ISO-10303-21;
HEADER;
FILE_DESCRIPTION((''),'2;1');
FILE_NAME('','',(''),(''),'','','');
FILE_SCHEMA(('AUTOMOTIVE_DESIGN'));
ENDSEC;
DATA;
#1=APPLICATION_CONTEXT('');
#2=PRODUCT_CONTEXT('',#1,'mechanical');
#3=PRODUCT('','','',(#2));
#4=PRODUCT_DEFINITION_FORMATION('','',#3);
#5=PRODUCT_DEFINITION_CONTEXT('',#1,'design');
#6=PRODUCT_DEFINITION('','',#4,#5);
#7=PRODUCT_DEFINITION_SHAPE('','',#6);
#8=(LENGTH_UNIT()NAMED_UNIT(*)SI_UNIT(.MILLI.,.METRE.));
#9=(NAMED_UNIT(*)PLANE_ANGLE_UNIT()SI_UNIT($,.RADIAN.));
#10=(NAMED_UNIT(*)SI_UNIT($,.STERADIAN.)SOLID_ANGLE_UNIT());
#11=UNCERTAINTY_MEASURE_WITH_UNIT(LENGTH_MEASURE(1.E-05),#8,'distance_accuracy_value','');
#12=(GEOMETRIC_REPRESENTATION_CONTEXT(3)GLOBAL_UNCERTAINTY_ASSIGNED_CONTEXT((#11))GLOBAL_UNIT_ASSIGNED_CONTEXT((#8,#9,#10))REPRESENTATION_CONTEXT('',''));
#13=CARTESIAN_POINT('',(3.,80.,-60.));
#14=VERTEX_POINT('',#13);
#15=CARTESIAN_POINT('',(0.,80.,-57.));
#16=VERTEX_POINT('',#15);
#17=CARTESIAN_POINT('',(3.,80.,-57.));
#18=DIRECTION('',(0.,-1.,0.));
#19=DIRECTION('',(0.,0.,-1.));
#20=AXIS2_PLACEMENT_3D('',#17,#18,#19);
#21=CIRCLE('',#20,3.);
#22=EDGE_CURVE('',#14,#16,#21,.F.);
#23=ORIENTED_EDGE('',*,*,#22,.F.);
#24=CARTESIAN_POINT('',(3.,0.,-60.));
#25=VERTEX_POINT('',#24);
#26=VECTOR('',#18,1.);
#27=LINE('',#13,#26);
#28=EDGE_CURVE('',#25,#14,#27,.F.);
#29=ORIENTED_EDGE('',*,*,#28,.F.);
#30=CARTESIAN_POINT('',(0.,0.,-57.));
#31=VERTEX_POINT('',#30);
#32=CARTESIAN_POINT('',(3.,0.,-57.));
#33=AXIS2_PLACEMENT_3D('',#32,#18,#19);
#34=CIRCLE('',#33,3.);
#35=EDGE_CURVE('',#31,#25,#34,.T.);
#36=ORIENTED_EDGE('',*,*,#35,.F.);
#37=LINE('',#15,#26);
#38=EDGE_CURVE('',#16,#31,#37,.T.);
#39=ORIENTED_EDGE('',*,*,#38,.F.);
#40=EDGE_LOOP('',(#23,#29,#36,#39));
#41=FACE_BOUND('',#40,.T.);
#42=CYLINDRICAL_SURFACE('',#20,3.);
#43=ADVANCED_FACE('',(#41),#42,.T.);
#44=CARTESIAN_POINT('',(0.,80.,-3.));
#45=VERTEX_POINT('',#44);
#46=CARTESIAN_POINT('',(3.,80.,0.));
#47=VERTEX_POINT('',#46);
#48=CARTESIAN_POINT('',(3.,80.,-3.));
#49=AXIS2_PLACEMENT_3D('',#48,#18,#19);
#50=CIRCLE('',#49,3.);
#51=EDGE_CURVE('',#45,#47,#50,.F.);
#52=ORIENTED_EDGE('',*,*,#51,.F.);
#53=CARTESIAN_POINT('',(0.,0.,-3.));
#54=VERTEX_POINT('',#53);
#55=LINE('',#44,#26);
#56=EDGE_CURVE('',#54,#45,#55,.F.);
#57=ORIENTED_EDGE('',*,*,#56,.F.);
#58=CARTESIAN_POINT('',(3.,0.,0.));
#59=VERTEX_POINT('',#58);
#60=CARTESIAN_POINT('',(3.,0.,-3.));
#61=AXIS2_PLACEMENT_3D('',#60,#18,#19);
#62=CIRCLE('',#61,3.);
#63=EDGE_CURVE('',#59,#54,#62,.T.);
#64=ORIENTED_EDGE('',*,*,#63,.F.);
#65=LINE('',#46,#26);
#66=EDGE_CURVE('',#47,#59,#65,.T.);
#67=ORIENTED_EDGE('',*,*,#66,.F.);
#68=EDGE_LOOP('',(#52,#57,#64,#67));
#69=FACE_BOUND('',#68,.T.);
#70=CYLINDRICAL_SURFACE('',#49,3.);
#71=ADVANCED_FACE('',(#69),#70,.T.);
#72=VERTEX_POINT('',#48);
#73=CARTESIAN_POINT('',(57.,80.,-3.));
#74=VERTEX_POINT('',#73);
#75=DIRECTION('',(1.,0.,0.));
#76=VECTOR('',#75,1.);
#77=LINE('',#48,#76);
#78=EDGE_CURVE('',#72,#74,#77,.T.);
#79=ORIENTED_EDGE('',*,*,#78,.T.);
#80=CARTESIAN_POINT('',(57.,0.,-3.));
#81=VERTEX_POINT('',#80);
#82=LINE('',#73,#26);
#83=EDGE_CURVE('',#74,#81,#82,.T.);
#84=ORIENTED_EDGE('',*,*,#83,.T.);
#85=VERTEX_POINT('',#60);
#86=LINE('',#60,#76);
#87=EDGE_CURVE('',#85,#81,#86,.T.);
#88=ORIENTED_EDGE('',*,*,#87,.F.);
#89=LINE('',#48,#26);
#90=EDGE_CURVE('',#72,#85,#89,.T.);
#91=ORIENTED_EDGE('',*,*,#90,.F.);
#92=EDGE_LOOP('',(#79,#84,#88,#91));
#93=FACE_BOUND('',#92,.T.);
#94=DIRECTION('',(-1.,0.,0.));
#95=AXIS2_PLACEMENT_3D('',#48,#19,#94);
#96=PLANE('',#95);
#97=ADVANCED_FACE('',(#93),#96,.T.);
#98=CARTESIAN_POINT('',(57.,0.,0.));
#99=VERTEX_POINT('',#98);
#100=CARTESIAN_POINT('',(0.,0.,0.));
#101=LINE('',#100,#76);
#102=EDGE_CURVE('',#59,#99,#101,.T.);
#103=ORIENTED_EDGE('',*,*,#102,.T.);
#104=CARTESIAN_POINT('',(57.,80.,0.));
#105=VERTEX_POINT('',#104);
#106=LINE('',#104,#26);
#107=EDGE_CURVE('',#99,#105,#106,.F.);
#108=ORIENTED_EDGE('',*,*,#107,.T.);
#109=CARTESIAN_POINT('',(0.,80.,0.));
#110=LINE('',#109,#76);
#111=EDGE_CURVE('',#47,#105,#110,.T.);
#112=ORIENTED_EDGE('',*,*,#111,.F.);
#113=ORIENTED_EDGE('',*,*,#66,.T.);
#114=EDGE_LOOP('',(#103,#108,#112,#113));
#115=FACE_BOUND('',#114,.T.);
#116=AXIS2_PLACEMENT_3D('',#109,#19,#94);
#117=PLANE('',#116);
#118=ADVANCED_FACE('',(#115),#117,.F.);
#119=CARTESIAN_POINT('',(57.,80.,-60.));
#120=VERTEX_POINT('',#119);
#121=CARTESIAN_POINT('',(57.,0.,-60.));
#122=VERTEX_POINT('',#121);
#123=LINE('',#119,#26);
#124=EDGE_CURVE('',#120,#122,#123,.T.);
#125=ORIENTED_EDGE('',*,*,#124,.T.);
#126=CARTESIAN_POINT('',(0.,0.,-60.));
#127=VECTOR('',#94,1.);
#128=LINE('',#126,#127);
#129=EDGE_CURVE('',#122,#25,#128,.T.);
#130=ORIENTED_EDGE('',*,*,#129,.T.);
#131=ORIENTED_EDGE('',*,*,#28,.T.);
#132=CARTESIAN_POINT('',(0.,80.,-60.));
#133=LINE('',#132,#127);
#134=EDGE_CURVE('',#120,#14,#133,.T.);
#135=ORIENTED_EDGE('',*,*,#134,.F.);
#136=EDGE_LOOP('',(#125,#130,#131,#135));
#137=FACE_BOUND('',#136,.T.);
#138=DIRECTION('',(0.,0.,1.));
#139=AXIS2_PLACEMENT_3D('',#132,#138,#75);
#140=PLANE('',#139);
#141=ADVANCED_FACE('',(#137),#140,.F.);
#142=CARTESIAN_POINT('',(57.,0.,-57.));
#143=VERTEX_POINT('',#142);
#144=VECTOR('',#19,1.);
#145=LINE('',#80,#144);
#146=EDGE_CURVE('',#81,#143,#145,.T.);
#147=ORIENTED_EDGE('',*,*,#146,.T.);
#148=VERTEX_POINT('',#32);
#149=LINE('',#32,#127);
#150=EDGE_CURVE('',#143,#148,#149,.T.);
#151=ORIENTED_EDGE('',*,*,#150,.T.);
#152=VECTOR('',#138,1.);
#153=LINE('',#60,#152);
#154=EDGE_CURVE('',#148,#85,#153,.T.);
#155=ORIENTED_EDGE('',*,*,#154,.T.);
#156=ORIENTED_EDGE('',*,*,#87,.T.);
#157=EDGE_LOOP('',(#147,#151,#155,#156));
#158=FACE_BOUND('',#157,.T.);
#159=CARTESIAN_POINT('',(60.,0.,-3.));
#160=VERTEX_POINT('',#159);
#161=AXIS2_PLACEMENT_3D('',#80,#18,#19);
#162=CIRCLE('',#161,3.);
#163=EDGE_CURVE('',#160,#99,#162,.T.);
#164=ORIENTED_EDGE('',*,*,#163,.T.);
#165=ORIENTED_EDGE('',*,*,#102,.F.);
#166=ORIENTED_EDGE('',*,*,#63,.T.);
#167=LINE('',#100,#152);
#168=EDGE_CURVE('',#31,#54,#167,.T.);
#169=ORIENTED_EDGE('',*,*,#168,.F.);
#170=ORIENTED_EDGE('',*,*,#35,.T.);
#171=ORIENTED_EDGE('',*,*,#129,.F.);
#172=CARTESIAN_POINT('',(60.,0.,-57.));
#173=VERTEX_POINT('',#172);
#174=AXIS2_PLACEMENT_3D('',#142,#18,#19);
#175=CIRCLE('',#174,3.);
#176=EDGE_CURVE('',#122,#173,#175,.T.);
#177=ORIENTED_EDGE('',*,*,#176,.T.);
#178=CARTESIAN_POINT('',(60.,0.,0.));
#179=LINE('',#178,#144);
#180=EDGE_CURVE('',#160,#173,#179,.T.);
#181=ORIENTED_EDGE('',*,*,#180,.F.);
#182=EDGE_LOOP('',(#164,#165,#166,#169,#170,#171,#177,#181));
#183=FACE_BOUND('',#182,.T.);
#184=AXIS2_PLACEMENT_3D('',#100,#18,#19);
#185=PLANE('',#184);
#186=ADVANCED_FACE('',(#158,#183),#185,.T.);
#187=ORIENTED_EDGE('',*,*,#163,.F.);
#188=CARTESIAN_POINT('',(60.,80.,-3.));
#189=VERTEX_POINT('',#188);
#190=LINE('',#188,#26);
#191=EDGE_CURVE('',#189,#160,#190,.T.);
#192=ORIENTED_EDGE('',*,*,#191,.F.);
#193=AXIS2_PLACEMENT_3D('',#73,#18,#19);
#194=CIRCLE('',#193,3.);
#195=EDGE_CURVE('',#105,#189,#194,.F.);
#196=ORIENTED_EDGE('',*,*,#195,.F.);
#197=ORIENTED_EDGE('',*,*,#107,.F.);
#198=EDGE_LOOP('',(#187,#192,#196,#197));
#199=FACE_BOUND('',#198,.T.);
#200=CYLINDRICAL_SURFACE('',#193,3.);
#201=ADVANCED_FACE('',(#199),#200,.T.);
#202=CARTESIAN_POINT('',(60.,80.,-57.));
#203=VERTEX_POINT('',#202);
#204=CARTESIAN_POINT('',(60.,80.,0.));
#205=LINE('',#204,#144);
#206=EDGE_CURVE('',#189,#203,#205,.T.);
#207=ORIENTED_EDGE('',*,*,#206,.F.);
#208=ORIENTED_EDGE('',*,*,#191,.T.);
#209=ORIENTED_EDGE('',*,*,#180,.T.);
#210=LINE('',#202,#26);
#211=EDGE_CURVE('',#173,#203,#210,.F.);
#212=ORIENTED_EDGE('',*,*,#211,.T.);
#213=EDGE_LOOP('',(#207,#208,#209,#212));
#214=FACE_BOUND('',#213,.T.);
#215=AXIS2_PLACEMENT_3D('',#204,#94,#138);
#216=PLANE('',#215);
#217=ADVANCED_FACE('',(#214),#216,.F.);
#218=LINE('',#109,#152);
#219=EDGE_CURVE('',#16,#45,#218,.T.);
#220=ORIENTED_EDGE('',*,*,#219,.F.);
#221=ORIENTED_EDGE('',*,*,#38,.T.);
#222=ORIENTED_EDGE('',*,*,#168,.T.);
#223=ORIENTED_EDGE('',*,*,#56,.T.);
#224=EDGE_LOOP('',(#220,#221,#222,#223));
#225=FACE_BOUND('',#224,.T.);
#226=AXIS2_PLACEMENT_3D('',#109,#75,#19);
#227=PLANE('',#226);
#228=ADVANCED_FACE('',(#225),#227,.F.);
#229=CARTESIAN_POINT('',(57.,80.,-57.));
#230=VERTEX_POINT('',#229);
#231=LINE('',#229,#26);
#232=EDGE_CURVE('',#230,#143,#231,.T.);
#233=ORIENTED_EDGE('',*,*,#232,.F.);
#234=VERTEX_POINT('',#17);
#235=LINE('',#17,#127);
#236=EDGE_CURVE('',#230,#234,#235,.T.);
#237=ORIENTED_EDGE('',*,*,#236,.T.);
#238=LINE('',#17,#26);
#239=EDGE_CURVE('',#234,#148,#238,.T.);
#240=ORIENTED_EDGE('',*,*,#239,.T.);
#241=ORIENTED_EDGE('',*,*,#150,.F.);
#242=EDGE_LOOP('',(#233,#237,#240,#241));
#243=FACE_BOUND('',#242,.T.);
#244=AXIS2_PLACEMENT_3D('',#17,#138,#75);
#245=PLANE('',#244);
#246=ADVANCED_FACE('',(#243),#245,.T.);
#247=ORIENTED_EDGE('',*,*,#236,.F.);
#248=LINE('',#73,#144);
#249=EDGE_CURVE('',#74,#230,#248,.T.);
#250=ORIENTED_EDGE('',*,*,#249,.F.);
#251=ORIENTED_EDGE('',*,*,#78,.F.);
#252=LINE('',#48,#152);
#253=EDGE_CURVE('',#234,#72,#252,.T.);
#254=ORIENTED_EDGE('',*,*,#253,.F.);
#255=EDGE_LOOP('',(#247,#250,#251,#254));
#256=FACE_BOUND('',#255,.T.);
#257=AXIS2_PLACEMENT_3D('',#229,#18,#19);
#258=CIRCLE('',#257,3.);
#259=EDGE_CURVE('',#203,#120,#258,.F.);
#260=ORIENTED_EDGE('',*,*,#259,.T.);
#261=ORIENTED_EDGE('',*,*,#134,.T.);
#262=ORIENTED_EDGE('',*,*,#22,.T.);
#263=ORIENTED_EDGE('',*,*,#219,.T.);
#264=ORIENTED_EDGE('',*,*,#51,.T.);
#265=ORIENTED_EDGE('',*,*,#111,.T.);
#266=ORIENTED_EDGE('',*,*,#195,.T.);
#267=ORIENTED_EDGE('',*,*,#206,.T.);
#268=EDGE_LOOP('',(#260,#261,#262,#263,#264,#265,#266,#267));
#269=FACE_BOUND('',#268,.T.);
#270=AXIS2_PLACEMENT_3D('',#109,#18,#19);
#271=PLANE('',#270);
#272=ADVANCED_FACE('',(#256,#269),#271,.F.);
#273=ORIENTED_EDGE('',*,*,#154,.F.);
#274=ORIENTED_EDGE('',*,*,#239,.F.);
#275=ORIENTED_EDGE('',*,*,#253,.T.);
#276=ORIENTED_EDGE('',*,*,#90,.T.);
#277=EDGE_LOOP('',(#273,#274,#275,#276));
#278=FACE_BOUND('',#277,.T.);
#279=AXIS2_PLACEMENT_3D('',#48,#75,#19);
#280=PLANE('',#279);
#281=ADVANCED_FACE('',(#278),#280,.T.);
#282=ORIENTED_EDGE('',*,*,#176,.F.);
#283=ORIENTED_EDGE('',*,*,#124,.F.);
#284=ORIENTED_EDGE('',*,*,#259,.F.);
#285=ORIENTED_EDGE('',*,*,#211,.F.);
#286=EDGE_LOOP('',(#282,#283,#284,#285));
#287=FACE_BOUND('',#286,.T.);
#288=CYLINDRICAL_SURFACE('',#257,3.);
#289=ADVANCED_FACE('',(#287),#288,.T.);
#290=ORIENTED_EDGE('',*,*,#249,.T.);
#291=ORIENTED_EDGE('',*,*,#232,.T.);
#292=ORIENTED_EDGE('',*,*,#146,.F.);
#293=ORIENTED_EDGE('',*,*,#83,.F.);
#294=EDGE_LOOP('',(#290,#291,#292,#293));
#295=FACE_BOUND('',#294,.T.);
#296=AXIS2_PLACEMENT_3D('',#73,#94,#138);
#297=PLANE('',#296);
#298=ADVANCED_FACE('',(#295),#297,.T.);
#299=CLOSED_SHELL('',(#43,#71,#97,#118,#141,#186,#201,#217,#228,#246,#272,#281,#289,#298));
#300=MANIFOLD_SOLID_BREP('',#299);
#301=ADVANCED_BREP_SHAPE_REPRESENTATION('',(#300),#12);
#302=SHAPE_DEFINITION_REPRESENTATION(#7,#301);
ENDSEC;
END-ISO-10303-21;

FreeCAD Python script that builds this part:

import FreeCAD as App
import Part
import Sketcher

V = App.Vector


def edges_at(feature, points):
    """Names of the edges that pass closest to the given points."""
    edges = feature.Shape.Edges
    near = lambda p: min(range(len(edges)), key=lambda i: edges[i].distToShape(Part.Vertex(*p))[0])
    return sorted({f"Edge{near(p) + 1}" for p in points})


def add_polygon(sketch, points):
    """Adds a closed chain of lines whose ends are joined by coincident constraints."""
    first, n = sketch.GeometryCount, len(points)
    for a, b in zip(points, points[1:] + points[:1]):
        sketch.addGeometry(Part.LineSegment(App.Vector(*a, 0), App.Vector(*b, 0)), False)
    for i in range(n):
        sketch.addConstraint(Sketcher.Constraint("Coincident", first + i, 2, first + (i + 1) % n, 1))

doc = App.newDocument("Part")
params = doc.addObject("Spreadsheet::Sheet", "Params")
for row, (alias, value) in enumerate([
    ("sketch1_width", "60 mm"),
    ("sketch1_width2", "54 mm"),
    ("pad1_length", "80 mm"),
    ("fillet_radius", "3 mm"),
], start=1):
    params.set(f"A{row}", alias)
    params.set(f"B{row}", "=" + value)
    params.setAlias(f"B{row}", alias)

body = doc.addObject("PartDesign::Body", "Body")

# Sketch on XZ plane
sketch1 = body.newObject("Sketcher::SketchObject", "Sketch")
sketch1.AttachmentSupport = (doc.getObject("XZ_Plane"), [""])
sketch1.MapMode = "FlatFace"
add_polygon(sketch1, [(0, -60), (0, 0), (60, 0), (60, -60)])  # lines 0-3
add_polygon(sketch1, [(57, -3), (3, -3), (3, -57), (57, -57)])  # lines 4-7
sketch1.addConstraint([
    Sketcher.Constraint("Vertical", 0),
    Sketcher.Constraint("Horizontal", 1),
    Sketcher.Constraint("Vertical", 2),
    Sketcher.Constraint("Horizontal", 3),
    Sketcher.Constraint("Horizontal", 4),
    Sketcher.Constraint("Vertical", 5),
    Sketcher.Constraint("Horizontal", 6),
    Sketcher.Constraint("Vertical", 7),
    Sketcher.Constraint("Coincident", 0, 2, -1, 1),
    Sketcher.Constraint("Equal", 3, 0),
    Sketcher.Constraint("Equal", 6, 5),
    Sketcher.Constraint("DistanceX", 1, 1, 1, 2, 60.0),
    Sketcher.Constraint("DistanceX", 4, 2, 4, 1, 54.0),
    Sketcher.Constraint("DistanceX", -1, 1, 4, 2, 3.0),
    Sketcher.Constraint("DistanceY", 4, 2, -1, 1, 3.0),
])
sketch1.setExpression("Constraints[19]", "Params.sketch1_width")
sketch1.setExpression("Constraints[20]", "Params.sketch1_width2")
pad1 = body.newObject("PartDesign::Pad", "Pad")
pad1.Profile = sketch1
pad1.setExpression("Length", "Params.pad1_length")
pad1.Reversed = True
doc.recompute()

fillet = body.newObject("PartDesign::Fillet", "Fillet")
fillet.Base = (pad1, edges_at(pad1, [
    (0, 40, -60),
    (60, 40, -60),
    (60, 40, 0),
    (0, 40, 0),
]))
fillet.setExpression("Radius", "Params.fillet_radius")

doc.recompute()
